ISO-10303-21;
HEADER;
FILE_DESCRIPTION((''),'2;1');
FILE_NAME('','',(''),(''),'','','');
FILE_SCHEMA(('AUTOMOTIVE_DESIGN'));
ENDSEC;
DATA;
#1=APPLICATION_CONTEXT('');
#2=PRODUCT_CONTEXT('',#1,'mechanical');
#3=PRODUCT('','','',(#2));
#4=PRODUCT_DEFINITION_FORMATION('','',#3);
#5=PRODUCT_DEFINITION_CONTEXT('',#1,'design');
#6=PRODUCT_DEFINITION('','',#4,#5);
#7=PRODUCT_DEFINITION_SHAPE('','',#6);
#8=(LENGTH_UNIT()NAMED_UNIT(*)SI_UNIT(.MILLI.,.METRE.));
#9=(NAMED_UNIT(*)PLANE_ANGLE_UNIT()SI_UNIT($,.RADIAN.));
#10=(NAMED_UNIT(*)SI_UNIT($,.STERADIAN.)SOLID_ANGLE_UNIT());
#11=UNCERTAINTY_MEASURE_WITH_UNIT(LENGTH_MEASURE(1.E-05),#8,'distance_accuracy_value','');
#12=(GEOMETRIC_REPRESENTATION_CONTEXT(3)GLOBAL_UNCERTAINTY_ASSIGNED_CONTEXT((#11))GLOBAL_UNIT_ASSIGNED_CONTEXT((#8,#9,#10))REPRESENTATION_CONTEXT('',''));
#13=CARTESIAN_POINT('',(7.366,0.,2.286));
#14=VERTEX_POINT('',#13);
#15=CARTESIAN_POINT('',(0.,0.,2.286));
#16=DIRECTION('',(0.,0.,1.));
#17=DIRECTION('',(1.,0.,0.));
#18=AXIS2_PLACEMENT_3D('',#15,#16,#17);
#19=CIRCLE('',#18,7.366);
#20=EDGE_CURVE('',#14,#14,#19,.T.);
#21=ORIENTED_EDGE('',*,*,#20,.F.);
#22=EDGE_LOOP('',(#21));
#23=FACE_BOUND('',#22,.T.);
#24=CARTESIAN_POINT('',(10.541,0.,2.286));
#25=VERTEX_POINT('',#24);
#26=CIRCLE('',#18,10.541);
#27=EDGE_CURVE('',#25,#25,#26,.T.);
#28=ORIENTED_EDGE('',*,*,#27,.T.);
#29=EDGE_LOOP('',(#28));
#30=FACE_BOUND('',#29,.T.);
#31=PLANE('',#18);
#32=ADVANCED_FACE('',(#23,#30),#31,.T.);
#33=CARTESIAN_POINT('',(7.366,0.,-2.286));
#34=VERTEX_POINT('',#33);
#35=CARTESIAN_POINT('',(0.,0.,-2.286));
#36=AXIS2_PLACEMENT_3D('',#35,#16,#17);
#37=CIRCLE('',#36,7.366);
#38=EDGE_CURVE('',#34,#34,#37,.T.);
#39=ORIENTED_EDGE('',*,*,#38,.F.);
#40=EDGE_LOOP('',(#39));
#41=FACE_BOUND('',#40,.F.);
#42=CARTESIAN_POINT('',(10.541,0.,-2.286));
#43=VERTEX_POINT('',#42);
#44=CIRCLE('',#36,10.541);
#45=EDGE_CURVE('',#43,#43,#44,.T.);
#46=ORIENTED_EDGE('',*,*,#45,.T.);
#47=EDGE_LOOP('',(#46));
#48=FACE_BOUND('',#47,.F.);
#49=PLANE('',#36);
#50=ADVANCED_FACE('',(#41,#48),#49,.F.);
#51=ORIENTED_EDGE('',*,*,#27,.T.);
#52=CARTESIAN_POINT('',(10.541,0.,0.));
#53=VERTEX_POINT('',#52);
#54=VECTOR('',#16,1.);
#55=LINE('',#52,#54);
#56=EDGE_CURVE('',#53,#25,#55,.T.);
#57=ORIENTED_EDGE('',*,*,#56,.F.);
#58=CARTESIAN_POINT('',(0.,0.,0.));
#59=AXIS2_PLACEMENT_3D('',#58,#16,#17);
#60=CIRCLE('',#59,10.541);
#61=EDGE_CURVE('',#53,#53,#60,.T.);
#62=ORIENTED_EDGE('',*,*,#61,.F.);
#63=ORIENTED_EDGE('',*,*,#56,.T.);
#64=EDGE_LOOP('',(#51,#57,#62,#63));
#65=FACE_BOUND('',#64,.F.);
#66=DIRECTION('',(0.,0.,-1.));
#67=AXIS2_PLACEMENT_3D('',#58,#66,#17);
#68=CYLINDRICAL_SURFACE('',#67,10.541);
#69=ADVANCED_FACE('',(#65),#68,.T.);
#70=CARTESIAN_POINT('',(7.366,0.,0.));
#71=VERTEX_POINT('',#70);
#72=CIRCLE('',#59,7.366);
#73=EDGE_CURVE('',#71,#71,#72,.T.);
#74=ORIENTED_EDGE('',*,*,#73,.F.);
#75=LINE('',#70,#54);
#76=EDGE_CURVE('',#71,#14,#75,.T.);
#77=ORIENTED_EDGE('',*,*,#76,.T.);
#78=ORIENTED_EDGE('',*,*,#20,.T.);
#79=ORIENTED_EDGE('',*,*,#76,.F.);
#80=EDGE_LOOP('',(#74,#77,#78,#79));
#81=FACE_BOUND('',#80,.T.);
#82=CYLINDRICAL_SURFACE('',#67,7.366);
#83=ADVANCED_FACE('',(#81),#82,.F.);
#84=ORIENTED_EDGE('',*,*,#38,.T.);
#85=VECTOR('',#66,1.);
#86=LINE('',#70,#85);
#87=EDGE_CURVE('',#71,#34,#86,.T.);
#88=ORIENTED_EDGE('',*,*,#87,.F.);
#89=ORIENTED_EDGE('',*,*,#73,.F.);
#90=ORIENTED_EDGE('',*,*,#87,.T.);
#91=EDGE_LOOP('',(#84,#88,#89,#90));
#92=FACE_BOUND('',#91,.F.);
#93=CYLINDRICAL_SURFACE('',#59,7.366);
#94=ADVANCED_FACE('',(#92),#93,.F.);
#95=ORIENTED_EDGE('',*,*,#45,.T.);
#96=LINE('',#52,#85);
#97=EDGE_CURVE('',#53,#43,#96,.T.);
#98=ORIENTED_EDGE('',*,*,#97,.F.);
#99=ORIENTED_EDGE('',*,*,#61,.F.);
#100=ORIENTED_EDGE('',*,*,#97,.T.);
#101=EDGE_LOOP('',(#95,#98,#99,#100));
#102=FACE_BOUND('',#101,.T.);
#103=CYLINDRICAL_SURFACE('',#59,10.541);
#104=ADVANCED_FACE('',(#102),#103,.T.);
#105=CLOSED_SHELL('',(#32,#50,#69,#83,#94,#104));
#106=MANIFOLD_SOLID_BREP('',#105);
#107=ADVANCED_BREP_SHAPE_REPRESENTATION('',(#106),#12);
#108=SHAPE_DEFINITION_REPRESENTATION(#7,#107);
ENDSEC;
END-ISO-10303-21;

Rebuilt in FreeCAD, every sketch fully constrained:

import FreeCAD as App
import Part
import Sketcher
Q = App.Units.Quantity

doc = App.newDocument("Part")
params = doc.addObject("Spreadsheet::Sheet", "Params")
for row, (alias, value) in enumerate([
    ("sketch1_diameter", "0.58 in"),
    ("sketch1_diameter2", "0.83 in"),
    ("pad1_length", "0.18 in"),
], start=1):
    params.set(f"A{row}", alias)
    params.set(f"B{row}", "=" + value)
    params.setAlias(f"B{row}", alias)

body = doc.addObject("PartDesign::Body", "Body")

sketch1 = doc.addObject("Sketcher::SketchObject", "Sketch")
body.addObject(sketch1)
sketch1.AttachmentSupport = (doc.XY_Plane, [""])
sketch1.MapMode = "FlatFace"
sketch1.addGeometry([
    Part.Circle(App.Vector(0, 0, 0), App.Vector(0, 0, 1), 11),
    Part.Circle(App.Vector(0, 0, 0), App.Vector(0, 0, 1), 7),
], False)
sketch1.addConstraint([
    Sketcher.Constraint("Coincident", 0, 3, -1, 1),
    Sketcher.Constraint("Coincident", 1, 3, -1, 1),
    Sketcher.Constraint("Diameter", 1, Q("0.58 in")),
    Sketcher.Constraint("Diameter", 0, Q("0.83 in")),
])
sketch1.setExpression("Constraints[2]", "Params.sketch1_diameter")
sketch1.setExpression("Constraints[3]", "Params.sketch1_diameter2")
pad1 = doc.addObject("PartDesign::Pad", "Pad")
body.addObject(pad1)
pad1.Profile = sketch1
pad1.setExpression("Length", "Params.pad1_length")
pad1.Midplane = True

doc.recompute()
